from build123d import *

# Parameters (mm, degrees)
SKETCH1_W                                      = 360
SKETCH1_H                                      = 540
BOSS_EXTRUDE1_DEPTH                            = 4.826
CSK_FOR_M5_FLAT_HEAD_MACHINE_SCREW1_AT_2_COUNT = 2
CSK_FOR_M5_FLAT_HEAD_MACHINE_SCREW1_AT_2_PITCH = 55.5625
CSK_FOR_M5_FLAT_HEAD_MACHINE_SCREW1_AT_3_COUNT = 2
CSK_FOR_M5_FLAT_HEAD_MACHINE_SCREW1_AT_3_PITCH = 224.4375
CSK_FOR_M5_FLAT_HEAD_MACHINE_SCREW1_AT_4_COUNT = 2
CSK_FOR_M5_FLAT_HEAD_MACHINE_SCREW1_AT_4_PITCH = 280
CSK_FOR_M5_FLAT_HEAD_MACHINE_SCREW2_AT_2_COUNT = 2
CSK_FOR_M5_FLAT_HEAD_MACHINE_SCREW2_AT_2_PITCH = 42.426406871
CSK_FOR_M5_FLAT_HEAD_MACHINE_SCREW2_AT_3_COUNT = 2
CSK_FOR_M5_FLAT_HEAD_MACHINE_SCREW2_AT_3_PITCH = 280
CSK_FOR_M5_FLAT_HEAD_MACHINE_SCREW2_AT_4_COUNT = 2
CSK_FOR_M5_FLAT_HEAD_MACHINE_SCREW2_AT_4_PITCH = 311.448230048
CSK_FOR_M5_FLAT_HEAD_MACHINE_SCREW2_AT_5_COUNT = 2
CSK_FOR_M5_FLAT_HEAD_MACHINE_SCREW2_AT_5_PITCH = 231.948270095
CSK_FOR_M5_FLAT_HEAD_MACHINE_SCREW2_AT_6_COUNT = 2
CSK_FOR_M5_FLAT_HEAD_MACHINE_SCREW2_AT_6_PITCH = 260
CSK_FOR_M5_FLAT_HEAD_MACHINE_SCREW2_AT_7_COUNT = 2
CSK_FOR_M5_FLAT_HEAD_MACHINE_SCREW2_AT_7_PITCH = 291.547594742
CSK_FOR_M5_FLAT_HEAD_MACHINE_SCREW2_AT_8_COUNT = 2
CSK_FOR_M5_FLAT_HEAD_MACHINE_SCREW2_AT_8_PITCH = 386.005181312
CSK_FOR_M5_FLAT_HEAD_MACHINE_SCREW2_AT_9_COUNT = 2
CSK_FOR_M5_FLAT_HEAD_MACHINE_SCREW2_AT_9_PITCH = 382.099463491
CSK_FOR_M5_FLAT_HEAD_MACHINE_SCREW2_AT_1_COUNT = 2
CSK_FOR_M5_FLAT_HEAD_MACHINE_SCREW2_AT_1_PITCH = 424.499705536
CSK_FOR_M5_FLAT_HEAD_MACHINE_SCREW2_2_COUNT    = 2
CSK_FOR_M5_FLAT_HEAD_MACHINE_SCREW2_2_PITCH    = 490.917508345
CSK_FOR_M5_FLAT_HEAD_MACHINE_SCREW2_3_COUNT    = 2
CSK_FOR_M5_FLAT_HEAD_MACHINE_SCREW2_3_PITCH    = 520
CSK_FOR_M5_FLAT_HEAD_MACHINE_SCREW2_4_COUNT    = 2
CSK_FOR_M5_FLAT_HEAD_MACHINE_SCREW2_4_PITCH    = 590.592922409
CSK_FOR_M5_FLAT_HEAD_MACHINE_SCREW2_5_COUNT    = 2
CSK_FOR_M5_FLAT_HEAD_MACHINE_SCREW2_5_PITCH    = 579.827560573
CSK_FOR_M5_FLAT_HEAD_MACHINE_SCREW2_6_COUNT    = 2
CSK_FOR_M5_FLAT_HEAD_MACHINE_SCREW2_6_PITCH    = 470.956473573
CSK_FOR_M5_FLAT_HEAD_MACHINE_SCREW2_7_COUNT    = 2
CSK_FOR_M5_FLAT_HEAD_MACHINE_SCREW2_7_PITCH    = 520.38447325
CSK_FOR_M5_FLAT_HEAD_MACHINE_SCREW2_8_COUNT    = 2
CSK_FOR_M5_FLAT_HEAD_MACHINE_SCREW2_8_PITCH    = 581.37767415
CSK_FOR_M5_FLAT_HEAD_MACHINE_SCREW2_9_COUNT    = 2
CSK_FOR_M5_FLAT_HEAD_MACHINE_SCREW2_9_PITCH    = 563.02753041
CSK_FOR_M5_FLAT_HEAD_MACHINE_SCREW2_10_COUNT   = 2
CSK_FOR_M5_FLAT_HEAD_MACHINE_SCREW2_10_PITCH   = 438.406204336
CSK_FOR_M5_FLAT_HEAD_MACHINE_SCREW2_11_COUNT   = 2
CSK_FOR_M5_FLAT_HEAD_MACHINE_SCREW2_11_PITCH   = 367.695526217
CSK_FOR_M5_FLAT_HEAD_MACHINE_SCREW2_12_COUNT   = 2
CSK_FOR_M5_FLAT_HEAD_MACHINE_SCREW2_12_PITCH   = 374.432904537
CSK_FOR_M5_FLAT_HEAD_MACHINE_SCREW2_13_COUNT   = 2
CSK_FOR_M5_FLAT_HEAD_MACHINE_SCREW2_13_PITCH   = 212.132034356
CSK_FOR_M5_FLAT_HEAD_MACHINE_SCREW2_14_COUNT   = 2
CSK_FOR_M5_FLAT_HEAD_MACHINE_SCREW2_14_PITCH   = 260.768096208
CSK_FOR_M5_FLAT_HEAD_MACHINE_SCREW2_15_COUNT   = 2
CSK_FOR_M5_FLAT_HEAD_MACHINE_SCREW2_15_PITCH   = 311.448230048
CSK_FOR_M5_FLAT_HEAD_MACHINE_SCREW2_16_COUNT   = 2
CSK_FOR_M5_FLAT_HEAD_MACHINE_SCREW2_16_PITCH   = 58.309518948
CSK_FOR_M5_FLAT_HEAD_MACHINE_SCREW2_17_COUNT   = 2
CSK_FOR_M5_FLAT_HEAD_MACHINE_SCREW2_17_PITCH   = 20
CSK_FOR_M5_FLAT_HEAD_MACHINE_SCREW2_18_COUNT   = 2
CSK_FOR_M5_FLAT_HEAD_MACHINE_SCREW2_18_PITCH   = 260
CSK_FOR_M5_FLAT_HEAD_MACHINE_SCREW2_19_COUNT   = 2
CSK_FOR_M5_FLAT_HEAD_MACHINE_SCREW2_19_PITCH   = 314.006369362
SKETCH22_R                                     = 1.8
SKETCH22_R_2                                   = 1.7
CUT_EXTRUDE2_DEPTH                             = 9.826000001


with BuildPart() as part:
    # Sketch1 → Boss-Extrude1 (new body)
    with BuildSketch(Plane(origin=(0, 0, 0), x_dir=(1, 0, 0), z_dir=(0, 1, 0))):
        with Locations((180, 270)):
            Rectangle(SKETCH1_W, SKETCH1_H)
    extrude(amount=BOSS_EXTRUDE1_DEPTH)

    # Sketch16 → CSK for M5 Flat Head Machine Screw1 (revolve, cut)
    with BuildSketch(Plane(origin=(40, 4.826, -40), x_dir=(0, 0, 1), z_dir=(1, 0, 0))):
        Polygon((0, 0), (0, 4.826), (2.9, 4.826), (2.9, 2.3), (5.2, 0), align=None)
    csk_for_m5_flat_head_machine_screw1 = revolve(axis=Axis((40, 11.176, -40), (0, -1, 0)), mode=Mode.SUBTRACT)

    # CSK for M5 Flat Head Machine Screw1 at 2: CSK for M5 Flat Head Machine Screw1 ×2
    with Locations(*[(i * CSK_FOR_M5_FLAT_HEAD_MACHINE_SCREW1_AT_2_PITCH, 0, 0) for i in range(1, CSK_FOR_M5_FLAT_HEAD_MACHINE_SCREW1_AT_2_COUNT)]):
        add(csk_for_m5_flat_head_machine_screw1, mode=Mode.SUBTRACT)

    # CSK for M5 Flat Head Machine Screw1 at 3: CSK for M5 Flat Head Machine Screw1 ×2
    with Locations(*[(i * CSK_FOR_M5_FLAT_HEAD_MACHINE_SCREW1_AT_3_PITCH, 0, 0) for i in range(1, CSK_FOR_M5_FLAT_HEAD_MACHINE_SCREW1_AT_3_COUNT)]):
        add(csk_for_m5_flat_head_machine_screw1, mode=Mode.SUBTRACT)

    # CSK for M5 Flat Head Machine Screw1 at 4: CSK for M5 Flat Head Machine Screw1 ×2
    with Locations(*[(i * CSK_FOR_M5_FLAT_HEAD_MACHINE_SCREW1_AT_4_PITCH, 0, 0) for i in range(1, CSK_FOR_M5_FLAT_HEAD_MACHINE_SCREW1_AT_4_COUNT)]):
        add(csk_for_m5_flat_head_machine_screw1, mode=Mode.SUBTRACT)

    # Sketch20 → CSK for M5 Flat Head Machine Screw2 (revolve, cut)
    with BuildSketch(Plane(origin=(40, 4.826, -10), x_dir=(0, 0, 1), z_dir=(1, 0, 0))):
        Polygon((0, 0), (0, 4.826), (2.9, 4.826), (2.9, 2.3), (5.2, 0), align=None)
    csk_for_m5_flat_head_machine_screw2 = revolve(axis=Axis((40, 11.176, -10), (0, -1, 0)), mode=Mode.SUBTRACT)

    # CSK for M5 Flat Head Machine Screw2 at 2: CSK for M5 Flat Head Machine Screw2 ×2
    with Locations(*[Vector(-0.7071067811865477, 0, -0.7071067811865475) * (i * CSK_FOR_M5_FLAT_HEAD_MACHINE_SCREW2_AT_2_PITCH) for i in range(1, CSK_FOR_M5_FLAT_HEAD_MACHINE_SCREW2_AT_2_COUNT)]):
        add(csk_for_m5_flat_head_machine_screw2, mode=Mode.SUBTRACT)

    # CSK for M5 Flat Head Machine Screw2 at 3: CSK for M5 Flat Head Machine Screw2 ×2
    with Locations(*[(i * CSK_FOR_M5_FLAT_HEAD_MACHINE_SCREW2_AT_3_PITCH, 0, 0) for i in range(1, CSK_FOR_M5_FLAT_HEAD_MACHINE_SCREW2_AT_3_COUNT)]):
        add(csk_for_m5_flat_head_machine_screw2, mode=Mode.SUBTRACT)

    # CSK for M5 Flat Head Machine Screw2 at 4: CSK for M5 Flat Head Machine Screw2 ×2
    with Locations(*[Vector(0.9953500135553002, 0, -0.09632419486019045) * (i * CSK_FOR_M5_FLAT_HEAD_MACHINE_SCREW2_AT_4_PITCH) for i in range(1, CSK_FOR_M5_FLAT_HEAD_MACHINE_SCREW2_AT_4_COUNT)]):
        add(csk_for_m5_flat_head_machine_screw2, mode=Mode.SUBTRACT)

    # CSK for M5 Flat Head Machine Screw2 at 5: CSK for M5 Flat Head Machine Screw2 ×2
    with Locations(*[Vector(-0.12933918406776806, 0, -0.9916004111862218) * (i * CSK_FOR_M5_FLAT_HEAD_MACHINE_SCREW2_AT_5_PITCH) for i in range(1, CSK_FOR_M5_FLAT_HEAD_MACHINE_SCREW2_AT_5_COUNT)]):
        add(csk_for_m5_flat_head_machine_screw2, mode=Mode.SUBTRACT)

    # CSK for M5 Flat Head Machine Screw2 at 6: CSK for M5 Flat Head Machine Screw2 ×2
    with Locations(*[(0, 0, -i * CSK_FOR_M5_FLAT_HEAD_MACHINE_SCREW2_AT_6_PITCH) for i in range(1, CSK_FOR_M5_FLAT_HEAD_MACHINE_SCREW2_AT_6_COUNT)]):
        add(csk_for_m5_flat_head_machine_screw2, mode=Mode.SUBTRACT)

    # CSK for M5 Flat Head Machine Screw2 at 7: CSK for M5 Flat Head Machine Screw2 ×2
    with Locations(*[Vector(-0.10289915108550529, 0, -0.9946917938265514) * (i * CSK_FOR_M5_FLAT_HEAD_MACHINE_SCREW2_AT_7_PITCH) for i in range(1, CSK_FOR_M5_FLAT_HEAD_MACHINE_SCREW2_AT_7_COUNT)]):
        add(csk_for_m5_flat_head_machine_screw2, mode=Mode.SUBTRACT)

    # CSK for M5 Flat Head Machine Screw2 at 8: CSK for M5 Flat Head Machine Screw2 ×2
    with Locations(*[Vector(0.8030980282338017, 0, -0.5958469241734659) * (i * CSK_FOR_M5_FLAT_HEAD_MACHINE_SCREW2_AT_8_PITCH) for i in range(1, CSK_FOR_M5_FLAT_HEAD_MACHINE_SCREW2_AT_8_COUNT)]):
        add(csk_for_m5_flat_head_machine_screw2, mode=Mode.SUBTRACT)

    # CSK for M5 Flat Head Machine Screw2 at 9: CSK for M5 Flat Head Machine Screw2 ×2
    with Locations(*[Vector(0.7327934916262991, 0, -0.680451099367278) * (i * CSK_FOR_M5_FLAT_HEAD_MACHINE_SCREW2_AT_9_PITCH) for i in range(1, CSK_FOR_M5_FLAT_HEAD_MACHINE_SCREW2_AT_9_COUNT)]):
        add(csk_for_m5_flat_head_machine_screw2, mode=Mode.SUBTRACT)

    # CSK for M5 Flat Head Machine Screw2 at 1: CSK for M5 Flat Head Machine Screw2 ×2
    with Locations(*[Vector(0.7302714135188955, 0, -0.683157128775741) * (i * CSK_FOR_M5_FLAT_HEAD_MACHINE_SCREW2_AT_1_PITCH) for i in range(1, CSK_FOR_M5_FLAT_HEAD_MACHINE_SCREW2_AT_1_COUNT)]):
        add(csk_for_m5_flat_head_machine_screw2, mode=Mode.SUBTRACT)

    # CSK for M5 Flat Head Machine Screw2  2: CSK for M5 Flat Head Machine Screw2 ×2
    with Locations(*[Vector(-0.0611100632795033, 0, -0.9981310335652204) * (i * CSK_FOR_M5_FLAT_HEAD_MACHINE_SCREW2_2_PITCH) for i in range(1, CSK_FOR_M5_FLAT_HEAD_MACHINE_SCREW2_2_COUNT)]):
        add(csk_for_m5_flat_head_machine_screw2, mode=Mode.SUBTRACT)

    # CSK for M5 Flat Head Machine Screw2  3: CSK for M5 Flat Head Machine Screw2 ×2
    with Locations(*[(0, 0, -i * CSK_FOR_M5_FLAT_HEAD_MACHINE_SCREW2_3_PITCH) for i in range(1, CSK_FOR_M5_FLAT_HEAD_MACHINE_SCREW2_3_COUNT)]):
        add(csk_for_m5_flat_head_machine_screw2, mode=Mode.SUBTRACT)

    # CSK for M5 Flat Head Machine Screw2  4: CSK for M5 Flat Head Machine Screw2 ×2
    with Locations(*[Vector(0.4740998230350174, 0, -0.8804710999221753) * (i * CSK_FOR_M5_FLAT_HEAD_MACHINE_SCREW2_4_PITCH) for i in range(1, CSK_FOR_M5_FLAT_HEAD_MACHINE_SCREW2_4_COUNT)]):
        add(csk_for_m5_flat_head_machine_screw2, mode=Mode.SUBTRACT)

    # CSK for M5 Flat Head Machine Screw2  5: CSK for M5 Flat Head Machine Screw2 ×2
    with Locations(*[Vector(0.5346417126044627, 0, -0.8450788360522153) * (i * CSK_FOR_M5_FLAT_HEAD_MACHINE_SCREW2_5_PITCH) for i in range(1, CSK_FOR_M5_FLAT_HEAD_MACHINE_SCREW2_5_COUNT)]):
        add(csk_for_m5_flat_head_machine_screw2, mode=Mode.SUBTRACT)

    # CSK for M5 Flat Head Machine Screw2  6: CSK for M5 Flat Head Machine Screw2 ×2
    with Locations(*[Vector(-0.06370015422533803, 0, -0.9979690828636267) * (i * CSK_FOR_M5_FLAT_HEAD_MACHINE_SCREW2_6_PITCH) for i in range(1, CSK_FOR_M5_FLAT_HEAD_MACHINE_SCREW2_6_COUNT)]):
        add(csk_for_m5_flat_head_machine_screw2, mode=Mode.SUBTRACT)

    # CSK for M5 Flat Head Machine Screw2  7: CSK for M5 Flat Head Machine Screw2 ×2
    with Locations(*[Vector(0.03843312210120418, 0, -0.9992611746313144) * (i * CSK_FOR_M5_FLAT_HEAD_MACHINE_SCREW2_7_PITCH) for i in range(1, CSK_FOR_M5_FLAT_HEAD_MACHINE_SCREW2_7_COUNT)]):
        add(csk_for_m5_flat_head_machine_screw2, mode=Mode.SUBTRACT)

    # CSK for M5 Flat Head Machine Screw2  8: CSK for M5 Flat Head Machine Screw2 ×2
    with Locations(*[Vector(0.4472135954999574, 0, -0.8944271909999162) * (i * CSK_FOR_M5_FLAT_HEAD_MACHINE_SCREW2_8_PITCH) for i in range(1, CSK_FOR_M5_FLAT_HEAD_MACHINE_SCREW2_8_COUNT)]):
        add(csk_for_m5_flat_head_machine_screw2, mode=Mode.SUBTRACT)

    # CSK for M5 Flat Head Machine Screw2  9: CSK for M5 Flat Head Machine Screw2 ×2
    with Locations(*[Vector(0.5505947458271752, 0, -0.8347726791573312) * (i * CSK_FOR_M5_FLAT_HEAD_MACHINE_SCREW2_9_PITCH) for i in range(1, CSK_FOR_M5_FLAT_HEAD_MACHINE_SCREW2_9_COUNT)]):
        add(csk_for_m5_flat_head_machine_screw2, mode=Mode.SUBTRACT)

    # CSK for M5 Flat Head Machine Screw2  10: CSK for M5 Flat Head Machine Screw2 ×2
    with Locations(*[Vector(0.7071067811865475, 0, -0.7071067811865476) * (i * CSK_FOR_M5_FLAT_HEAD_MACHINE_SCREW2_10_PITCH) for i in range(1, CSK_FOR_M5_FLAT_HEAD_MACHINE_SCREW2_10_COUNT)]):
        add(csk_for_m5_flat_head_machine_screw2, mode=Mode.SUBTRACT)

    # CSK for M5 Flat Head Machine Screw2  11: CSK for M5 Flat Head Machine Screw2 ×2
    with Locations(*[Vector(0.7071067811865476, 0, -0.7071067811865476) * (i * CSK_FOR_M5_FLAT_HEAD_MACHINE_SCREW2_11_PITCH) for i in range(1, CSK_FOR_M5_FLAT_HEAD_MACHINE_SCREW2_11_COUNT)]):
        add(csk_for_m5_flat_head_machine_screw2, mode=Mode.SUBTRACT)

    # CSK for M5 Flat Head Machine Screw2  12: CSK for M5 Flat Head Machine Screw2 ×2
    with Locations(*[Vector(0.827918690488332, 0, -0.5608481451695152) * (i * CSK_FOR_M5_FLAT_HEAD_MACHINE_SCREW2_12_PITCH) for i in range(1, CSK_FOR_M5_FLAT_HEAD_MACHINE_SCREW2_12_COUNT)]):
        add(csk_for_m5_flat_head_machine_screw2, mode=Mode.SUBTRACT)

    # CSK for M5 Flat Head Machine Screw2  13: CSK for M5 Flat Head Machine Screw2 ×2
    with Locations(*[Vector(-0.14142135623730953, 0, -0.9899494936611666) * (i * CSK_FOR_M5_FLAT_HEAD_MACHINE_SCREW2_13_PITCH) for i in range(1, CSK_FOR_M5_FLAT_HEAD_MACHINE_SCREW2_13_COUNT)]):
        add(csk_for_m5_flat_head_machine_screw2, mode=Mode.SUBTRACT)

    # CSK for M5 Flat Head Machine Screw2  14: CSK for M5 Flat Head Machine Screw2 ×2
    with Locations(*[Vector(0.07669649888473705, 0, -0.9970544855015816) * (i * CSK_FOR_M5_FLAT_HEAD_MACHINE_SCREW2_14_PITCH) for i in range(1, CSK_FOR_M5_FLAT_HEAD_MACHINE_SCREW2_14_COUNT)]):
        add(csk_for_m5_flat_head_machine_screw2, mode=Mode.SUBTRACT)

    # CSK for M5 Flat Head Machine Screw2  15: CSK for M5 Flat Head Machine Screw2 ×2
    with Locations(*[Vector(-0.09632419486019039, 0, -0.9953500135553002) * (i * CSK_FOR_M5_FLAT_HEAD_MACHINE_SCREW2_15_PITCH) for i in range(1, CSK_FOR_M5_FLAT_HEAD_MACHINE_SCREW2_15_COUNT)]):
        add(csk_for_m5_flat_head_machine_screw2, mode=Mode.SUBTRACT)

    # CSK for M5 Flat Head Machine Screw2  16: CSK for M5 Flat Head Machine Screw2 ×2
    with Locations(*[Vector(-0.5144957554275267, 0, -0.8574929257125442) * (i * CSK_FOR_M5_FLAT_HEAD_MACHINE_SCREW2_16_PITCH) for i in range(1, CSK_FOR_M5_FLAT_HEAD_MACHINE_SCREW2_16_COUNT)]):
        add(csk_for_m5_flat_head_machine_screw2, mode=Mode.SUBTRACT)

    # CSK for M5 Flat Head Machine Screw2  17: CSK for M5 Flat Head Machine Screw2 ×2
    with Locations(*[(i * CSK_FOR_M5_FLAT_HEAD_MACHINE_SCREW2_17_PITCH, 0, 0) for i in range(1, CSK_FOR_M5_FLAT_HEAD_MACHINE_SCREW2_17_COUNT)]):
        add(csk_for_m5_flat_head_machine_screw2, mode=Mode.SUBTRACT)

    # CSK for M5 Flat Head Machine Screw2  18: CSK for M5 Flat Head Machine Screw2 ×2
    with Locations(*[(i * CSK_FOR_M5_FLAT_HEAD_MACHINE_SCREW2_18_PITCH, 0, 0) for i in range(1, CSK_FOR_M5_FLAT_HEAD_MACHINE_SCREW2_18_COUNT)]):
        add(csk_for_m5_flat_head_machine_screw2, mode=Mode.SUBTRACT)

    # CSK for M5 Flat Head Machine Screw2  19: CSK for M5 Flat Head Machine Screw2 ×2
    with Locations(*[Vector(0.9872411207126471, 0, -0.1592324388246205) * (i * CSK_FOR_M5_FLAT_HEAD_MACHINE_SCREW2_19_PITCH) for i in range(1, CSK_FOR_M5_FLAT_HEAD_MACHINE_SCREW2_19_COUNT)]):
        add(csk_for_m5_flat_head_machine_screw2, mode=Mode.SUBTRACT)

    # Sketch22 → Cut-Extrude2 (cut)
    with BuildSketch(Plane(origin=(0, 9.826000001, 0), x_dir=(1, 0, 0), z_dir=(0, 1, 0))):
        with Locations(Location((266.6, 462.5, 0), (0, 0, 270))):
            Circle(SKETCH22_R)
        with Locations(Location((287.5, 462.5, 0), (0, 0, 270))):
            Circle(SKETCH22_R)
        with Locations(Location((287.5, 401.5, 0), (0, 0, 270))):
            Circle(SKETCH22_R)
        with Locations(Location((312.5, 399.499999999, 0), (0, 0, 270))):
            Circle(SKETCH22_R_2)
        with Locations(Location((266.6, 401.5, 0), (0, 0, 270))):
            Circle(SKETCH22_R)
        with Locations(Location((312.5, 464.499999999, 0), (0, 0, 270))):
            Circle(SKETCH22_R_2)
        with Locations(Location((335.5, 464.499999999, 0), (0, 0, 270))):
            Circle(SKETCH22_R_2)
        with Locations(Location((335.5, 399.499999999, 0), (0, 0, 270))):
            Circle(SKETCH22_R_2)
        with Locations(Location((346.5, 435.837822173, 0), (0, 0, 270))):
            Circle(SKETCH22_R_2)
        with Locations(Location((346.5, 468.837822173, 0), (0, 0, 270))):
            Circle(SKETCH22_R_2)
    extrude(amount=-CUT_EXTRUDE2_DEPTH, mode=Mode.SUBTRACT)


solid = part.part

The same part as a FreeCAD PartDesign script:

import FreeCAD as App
import Part
import Sketcher
Q = App.Units.Quantity


def add_polygon(sketch, points):
    """Adds a closed chain of lines whose ends are joined by coincident constraints."""
    first, n = sketch.GeometryCount, len(points)
    for a, b in zip(points, points[1:] + points[:1]):
        sketch.addGeometry(Part.LineSegment(App.Vector(*a, 0), App.Vector(*b, 0)), False)
    for i in range(n):
        sketch.addConstraint(Sketcher.Constraint("Coincident", first + i, 2, first + (i + 1) % n, 1))

doc = App.newDocument("Part")
body = doc.addObject("PartDesign::Body", "Body")

sketch1 = body.newObject("Sketcher::SketchObject", "Sketch")
sketch1.AttachmentSupport = (doc.getObject("XZ_Plane"), [""])
sketch1.MapMode = "FlatFace"
add_polygon(sketch1, [(0, -540), (0, 0), (360, 0), (360, -540)])
sketch1.addConstraint(Sketcher.Constraint("Vertical", 0))
sketch1.addConstraint(Sketcher.Constraint("Horizontal", 1))
sketch1.addConstraint(Sketcher.Constraint("Vertical", 2))
sketch1.addConstraint(Sketcher.Constraint("Horizontal", 3))
sketch1.addConstraint(Sketcher.Constraint("Coincident", 0, 2, -1, 1))
sketch1.addConstraint(Sketcher.Constraint("DistanceX", 1, 1, 1, 2, Q("360 mm")))
sketch1.addConstraint(Sketcher.Constraint("DistanceY", 0, 1, 0, 2, Q("540 mm")))
pad1 = body.newObject("PartDesign::Pad", "Pad")
pad1.Profile = sketch1
pad1.Length = 4.826
pad1.Reversed = True

sketch2 = body.newObject("Sketcher::SketchObject", "Sketch001")
sketch2.AttachmentSupport = (doc.getObject("YZ_Plane"), [""])
sketch2.MapMode = "FlatFace"
sketch2.AttachmentOffset = App.Placement(App.Vector(0, 0, 40), App.Rotation())
add_polygon(sketch2, [(0, -40), (4.8, -40), (4.8, -34.8), (2.5, -37.1), (0, -37.1)])
sketch2.addGeometry(Part.LineSegment(App.Vector(4.8, -40, 0), App.Vector(0, -40, 0)), True)
sketch2.addConstraint(Sketcher.Constraint("Horizontal", 0))
sketch2.addConstraint(Sketcher.Constraint("Vertical", 1))
sketch2.addConstraint(Sketcher.Constraint("Horizontal", 3))
sketch2.addConstraint(Sketcher.Constraint("Vertical", 4))
sketch2.addConstraint(Sketcher.Constraint("Horizontal", 5))
sketch2.addConstraint(Sketcher.Constraint("Coincident", 5, 1, 0, 2))
sketch2.addConstraint(Sketcher.Constraint("PointOnObject", 3, 2, -2))
sketch2.addConstraint(Sketcher.Constraint("PointOnObject", 5, 2, -2))
sketch2.addConstraint(Sketcher.Constraint("Angle", 2, Q("-135 deg")))
sketch2.addConstraint(Sketcher.Constraint("DistanceY", 1, 1, 1, 2, Q("5.2 mm")))
sketch2.addConstraint(Sketcher.Constraint("DistanceY", 4, 2, 4, 1, Q("2.9 mm")))
sketch2.addConstraint(Sketcher.Constraint("DistanceY", 0, 2, -1, 1, Q("40 mm")))
sketch2.addConstraint(Sketcher.Constraint("DistanceX", 0, 1, 0, 2, Q("4.826 mm")))
groove = body.newObject("PartDesign::Groove", "Groove")
groove.Profile = sketch2
groove.ReferenceAxis = (sketch2, ["Axis0"])
groove.Angle = 360
doc.recompute()

linearpattern = body.newObject("PartDesign::LinearPattern", "LinearPattern")
linearpattern.Originals = [groove]
linearpattern.Direction = (doc.getObject("X_Axis"), [""])
linearpattern.Mode = "offset"
linearpattern.Offset = 55.5625
linearpattern.Occurrences = 2
body.Tip = linearpattern
doc.recompute()

linearpattern2 = body.newObject("PartDesign::LinearPattern", "LinearPattern001")
linearpattern2.Originals = [groove]
linearpattern2.Direction = (doc.getObject("X_Axis"), [""])
linearpattern2.Mode = "offset"
linearpattern2.Offset = 224.4375
linearpattern2.Occurrences = 2
body.Tip = linearpattern2
doc.recompute()

linearpattern3 = body.newObject("PartDesign::LinearPattern", "LinearPattern002")
linearpattern3.Originals = [groove]
linearpattern3.Direction = (doc.getObject("X_Axis"), [""])
linearpattern3.Mode = "offset"
linearpattern3.Offset = 280
linearpattern3.Occurrences = 2
body.Tip = linearpattern3

sketch3 = body.newObject("Sketcher::SketchObject", "Sketch002")
sketch3.AttachmentSupport = (doc.getObject("YZ_Plane"), [""])
sketch3.MapMode = "FlatFace"
sketch3.AttachmentOffset = App.Placement(App.Vector(0, 0, 40), App.Rotation())
add_polygon(sketch3, [(0, -10), (4.8, -10), (4.8, -4.8), (2.5, -7.1), (0, -7.1)])
sketch3.addGeometry(Part.LineSegment(App.Vector(4.8, -10, 0), App.Vector(0, -10, 0)), True)
sketch3.addConstraint(Sketcher.Constraint("Horizontal", 0))
sketch3.addConstraint(Sketcher.Constraint("Vertical", 1))
sketch3.addConstraint(Sketcher.Constraint("Horizontal", 3))
sketch3.addConstraint(Sketcher.Constraint("Vertical", 4))
sketch3.addConstraint(Sketcher.Constraint("Horizontal", 5))
sketch3.addConstraint(Sketcher.Constraint("Coincident", 5, 1, 0, 2))
sketch3.addConstraint(Sketcher.Constraint("PointOnObject", 3, 2, -2))
sketch3.addConstraint(Sketcher.Constraint("PointOnObject", 5, 2, -2))
sketch3.addConstraint(Sketcher.Constraint("Angle", 2, Q("-135 deg")))
sketch3.addConstraint(Sketcher.Constraint("DistanceY", 1, 1, 1, 2, Q("5.2 mm")))
sketch3.addConstraint(Sketcher.Constraint("DistanceY", 4, 2, 4, 1, Q("2.9 mm")))
sketch3.addConstraint(Sketcher.Constraint("DistanceY", 0, 2, -1, 1, Q("10 mm")))
sketch3.addConstraint(Sketcher.Constraint("DistanceX", 0, 1, 0, 2, Q("4.826 mm")))
groove2 = body.newObject("PartDesign::Groove", "Groove001")
groove2.Profile = sketch3
groove2.ReferenceAxis = (sketch3, ["Axis0"])
groove2.Angle = 360
doc.recompute()

datumline = body.newObject("PartDesign::Line", "DatumLine")
datumline.Placement = App.Placement(App.Vector(0, 0, 0), App.Rotation(App.Vector(0, 0, 1), App.Vector(-0.707106781, 0, -0.707106781)))
linearpattern4 = body.newObject("PartDesign::LinearPattern", "LinearPattern003")
linearpattern4.Originals = [groove2]
linearpattern4.Direction = (datumline, [""])
linearpattern4.Mode = "offset"
linearpattern4.Offset = 42.426407
linearpattern4.Occurrences = 2
body.Tip = linearpattern4
doc.recompute()

linearpattern5 = body.newObject("PartDesign::LinearPattern", "LinearPattern004")
linearpattern5.Originals = [groove2]
linearpattern5.Direction = (doc.getObject("X_Axis"), [""])
linearpattern5.Mode = "offset"
linearpattern5.Offset = 280
linearpattern5.Occurrences = 2
body.Tip = linearpattern5
doc.recompute()

datumline2 = body.newObject("PartDesign::Line", "DatumLine001")
datumline2.Placement = App.Placement(App.Vector(0, 0, 0), App.Rotation(App.Vector(0, 0, 1), App.Vector(0.995350014, 0, -0.096324195)))
linearpattern6 = body.newObject("PartDesign::LinearPattern", "LinearPattern005")
linearpattern6.Originals = [groove2]
linearpattern6.Direction = (datumline2, [""])
linearpattern6.Mode = "offset"
linearpattern6.Offset = 311.44823
linearpattern6.Occurrences = 2
body.Tip = linearpattern6
doc.recompute()

datumline3 = body.newObject("PartDesign::Line", "DatumLine002")
datumline3.Placement = App.Placement(App.Vector(0, 0, 0), App.Rotation(App.Vector(0, 0, 1), App.Vector(-0.129339184, 0, -0.991600411)))
linearpattern7 = body.newObject("PartDesign::LinearPattern", "LinearPattern006")
linearpattern7.Originals = [groove2]
linearpattern7.Direction = (datumline3, [""])
linearpattern7.Mode = "offset"
linearpattern7.Offset = 231.94827
linearpattern7.Occurrences = 2
body.Tip = linearpattern7
doc.recompute()

linearpattern8 = body.newObject("PartDesign::LinearPattern", "LinearPattern007")
linearpattern8.Originals = [groove2]
linearpattern8.Direction = (doc.getObject("Z_Axis"), [""])
linearpattern8.Mode = "offset"
linearpattern8.Offset = 260
linearpattern8.Occurrences = 2
linearpattern8.Reversed = True
body.Tip = linearpattern8
doc.recompute()

datumline4 = body.newObject("PartDesign::Line", "DatumLine003")
datumline4.Placement = App.Placement(App.Vector(0, 0, 0), App.Rotation(App.Vector(0, 0, 1), App.Vector(-0.102899151, 0, -0.994691794)))
linearpattern9 = body.newObject("PartDesign::LinearPattern", "LinearPattern008")
linearpattern9.Originals = [groove2]
linearpattern9.Direction = (datumline4, [""])
linearpattern9.Mode = "offset"
linearpattern9.Offset = 291.547595
linearpattern9.Occurrences = 2
body.Tip = linearpattern9
doc.recompute()

datumline5 = body.newObject("PartDesign::Line", "DatumLine004")
datumline5.Placement = App.Placement(App.Vector(0, 0, 0), App.Rotation(App.Vector(0, 0, 1), App.Vector(0.803098028, 0, -0.595846924)))
linearpattern10 = body.newObject("PartDesign::LinearPattern", "LinearPattern009")
linearpattern10.Originals = [groove2]
linearpattern10.Direction = (datumline5, [""])
linearpattern10.Mode = "offset"
linearpattern10.Offset = 386.005181
linearpattern10.Occurrences = 2
body.Tip = linearpattern10
doc.recompute()

datumline6 = body.newObject("PartDesign::Line", "DatumLine005")
datumline6.Placement = App.Placement(App.Vector(0, 0, 0), App.Rotation(App.Vector(0, 0, 1), App.Vector(0.732793492, 0, -0.680451099)))
linearpattern11 = body.newObject("PartDesign::LinearPattern", "LinearPattern010")
linearpattern11.Originals = [groove2]
linearpattern11.Direction = (datumline6, [""])
linearpattern11.Mode = "offset"
linearpattern11.Offset = 382.099463
linearpattern11.Occurrences = 2
body.Tip = linearpattern11
doc.recompute()

datumline7 = body.newObject("PartDesign::Line", "DatumLine006")
datumline7.Placement = App.Placement(App.Vector(0, 0, 0), App.Rotation(App.Vector(0, 0, 1), App.Vector(0.730271414, 0, -0.683157129)))
linearpattern12 = body.newObject("PartDesign::LinearPattern", "LinearPattern011")
linearpattern12.Originals = [groove2]
linearpattern12.Direction = (datumline7, [""])
linearpattern12.Mode = "offset"
linearpattern12.Offset = 424.499706
linearpattern12.Occurrences = 2
body.Tip = linearpattern12
doc.recompute()

datumline8 = body.newObject("PartDesign::Line", "DatumLine007")
datumline8.Placement = App.Placement(App.Vector(0, 0, 0), App.Rotation(App.Vector(0, 0, 1), App.Vector(-0.061110063, 0, -0.998131034)))
linearpattern13 = body.newObject("PartDesign::LinearPattern", "LinearPattern012")
linearpattern13.Originals = [groove2]
linearpattern13.Direction = (datumline8, [""])
linearpattern13.Mode = "offset"
linearpattern13.Offset = 490.917508
linearpattern13.Occurrences = 2
body.Tip = linearpattern13
doc.recompute()

linearpattern14 = body.newObject("PartDesign::LinearPattern", "LinearPattern013")
linearpattern14.Originals = [groove2]
linearpattern14.Direction = (doc.getObject("Z_Axis"), [""])
linearpattern14.Mode = "offset"
linearpattern14.Offset = 520
linearpattern14.Occurrences = 2
linearpattern14.Reversed = True
body.Tip = linearpattern14
doc.recompute()

datumline9 = body.newObject("PartDesign::Line", "DatumLine008")
datumline9.Placement = App.Placement(App.Vector(0, 0, 0), App.Rotation(App.Vector(0, 0, 1), App.Vector(0.474099823, 0, -0.8804711)))
linearpattern15 = body.newObject("PartDesign::LinearPattern", "LinearPattern014")
linearpattern15.Originals = [groove2]
linearpattern15.Direction = (datumline9, [""])
linearpattern15.Mode = "offset"
linearpattern15.Offset = 590.592922
linearpattern15.Occurrences = 2
body.Tip = linearpattern15
doc.recompute()

datumline10 = body.newObject("PartDesign::Line", "DatumLine009")
datumline10.Placement = App.Placement(App.Vector(0, 0, 0), App.Rotation(App.Vector(0, 0, 1), App.Vector(0.534641713, 0, -0.845078836)))
linearpattern16 = body.newObject("PartDesign::LinearPattern", "LinearPattern015")
linearpattern16.Originals = [groove2]
linearpattern16.Direction = (datumline10, [""])
linearpattern16.Mode = "offset"
linearpattern16.Offset = 579.827561
linearpattern16.Occurrences = 2
body.Tip = linearpattern16
doc.recompute()

datumline11 = body.newObject("PartDesign::Line", "DatumLine010")
datumline11.Placement = App.Placement(App.Vector(0, 0, 0), App.Rotation(App.Vector(0, 0, 1), App.Vector(-0.063700154, 0, -0.997969083)))
linearpattern17 = body.newObject("PartDesign::LinearPattern", "LinearPattern016")
linearpattern17.Originals = [groove2]
linearpattern17.Direction = (datumline11, [""])
linearpattern17.Mode = "offset"
linearpattern17.Offset = 470.956474
linearpattern17.Occurrences = 2
body.Tip = linearpattern17
doc.recompute()

datumline12 = body.newObject("PartDesign::Line", "DatumLine011")
datumline12.Placement = App.Placement(App.Vector(0, 0, 0), App.Rotation(App.Vector(0, 0, 1), App.Vector(0.038433122, 0, -0.999261175)))
linearpattern18 = body.newObject("PartDesign::LinearPattern", "LinearPattern017")
linearpattern18.Originals = [groove2]
linearpattern18.Direction = (datumline12, [""])
linearpattern18.Mode = "offset"
linearpattern18.Offset = 520.384473
linearpattern18.Occurrences = 2
body.Tip = linearpattern18
doc.recompute()

datumline13 = body.newObject("PartDesign::Line", "DatumLine012")
datumline13.Placement = App.Placement(App.Vector(0, 0, 0), App.Rotation(App.Vector(0, 0, 1), App.Vector(0.447213595, 0, -0.894427191)))
linearpattern19 = body.newObject("PartDesign::LinearPattern", "LinearPattern018")
linearpattern19.Originals = [groove2]
linearpattern19.Direction = (datumline13, [""])
linearpattern19.Mode = "offset"
linearpattern19.Offset = 581.377674
linearpattern19.Occurrences = 2
body.Tip = linearpattern19
doc.recompute()

datumline14 = body.newObject("PartDesign::Line", "DatumLine013")
datumline14.Placement = App.Placement(App.Vector(0, 0, 0), App.Rotation(App.Vector(0, 0, 1), App.Vector(0.550594746, 0, -0.834772679)))
linearpattern20 = body.newObject("PartDesign::LinearPattern", "LinearPattern019")
linearpattern20.Originals = [groove2]
linearpattern20.Direction = (datumline14, [""])
linearpattern20.Mode = "offset"
linearpattern20.Offset = 563.02753
linearpattern20.Occurrences = 2
body.Tip = linearpattern20
doc.recompute()

datumline15 = body.newObject("PartDesign::Line", "DatumLine014")
datumline15.Placement = App.Placement(App.Vector(0, 0, 0), App.Rotation(App.Vector(0, 0, 1), App.Vector(0.707106781, 0, -0.707106781)))
linearpattern21 = body.newObject("PartDesign::LinearPattern", "LinearPattern020")
linearpattern21.Originals = [groove2]
linearpattern21.Direction = (datumline15, [""])
linearpattern21.Mode = "offset"
linearpattern21.Offset = 438.406204
linearpattern21.Occurrences = 2
body.Tip = linearpattern21
doc.recompute()

datumline16 = body.newObject("PartDesign::Line", "DatumLine015")
datumline16.Placement = App.Placement(App.Vector(0, 0, 0), App.Rotation(App.Vector(0, 0, 1), App.Vector(0.707106781, 0, -0.707106781)))
linearpattern22 = body.newObject("PartDesign::LinearPattern", "LinearPattern021")
linearpattern22.Originals = [groove2]
linearpattern22.Direction = (datumline16, [""])
linearpattern22.Mode = "offset"
linearpattern22.Offset = 367.695526
linearpattern22.Occurrences = 2
body.Tip = linearpattern22
doc.recompute()

datumline17 = body.newObject("PartDesign::Line", "DatumLine016")
datumline17.Placement = App.Placement(App.Vector(0, 0, 0), App.Rotation(App.Vector(0, 0, 1), App.Vector(0.82791869, 0, -0.560848145)))
linearpattern23 = body.newObject("PartDesign::LinearPattern", "LinearPattern022")
linearpattern23.Originals = [groove2]
linearpattern23.Direction = (datumline17, [""])
linearpattern23.Mode = "offset"
linearpattern23.Offset = 374.432905
linearpattern23.Occurrences = 2
body.Tip = linearpattern23
doc.recompute()

datumline18 = body.newObject("PartDesign::Line", "DatumLine017")
datumline18.Placement = App.Placement(App.Vector(0, 0, 0), App.Rotation(App.Vector(0, 0, 1), App.Vector(-0.141421356, 0, -0.989949494)))
linearpattern24 = body.newObject("PartDesign::LinearPattern", "LinearPattern023")
linearpattern24.Originals = [groove2]
linearpattern24.Direction = (datumline18, [""])
linearpattern24.Mode = "offset"
linearpattern24.Offset = 212.132034
linearpattern24.Occurrences = 2
body.Tip = linearpattern24
doc.recompute()

datumline19 = body.newObject("PartDesign::Line", "DatumLine018")
datumline19.Placement = App.Placement(App.Vector(0, 0, 0), App.Rotation(App.Vector(0, 0, 1), App.Vector(0.076696499, 0, -0.997054486)))
linearpattern25 = body.newObject("PartDesign::LinearPattern", "LinearPattern024")
linearpattern25.Originals = [groove2]
linearpattern25.Direction = (datumline19, [""])
linearpattern25.Mode = "offset"
linearpattern25.Offset = 260.768096
linearpattern25.Occurrences = 2
body.Tip = linearpattern25
doc.recompute()

datumline20 = body.newObject("PartDesign::Line", "DatumLine019")
datumline20.Placement = App.Placement(App.Vector(0, 0, 0), App.Rotation(App.Vector(0, 0, 1), App.Vector(-0.096324195, 0, -0.995350014)))
linearpattern26 = body.newObject("PartDesign::LinearPattern", "LinearPattern025")
linearpattern26.Originals = [groove2]
linearpattern26.Direction = (datumline20, [""])
linearpattern26.Mode = "offset"
linearpattern26.Offset = 311.44823
linearpattern26.Occurrences = 2
body.Tip = linearpattern26
doc.recompute()

datumline21 = body.newObject("PartDesign::Line", "DatumLine020")
datumline21.Placement = App.Placement(App.Vector(0, 0, 0), App.Rotation(App.Vector(0, 0, 1), App.Vector(-0.514495755, 0, -0.857492926)))
linearpattern27 = body.newObject("PartDesign::LinearPattern", "LinearPattern026")
linearpattern27.Originals = [groove2]
linearpattern27.Direction = (datumline21, [""])
linearpattern27.Mode = "offset"
linearpattern27.Offset = 58.309519
linearpattern27.Occurrences = 2
body.Tip = linearpattern27
doc.recompute()

linearpattern28 = body.newObject("PartDesign::LinearPattern", "LinearPattern027")
linearpattern28.Originals = [groove2]
linearpattern28.Direction = (doc.getObject("X_Axis"), [""])
linearpattern28.Mode = "offset"
linearpattern28.Offset = 20
linearpattern28.Occurrences = 2
body.Tip = linearpattern28
doc.recompute()

linearpattern29 = body.newObject("PartDesign::LinearPattern", "LinearPattern028")
linearpattern29.Originals = [groove2]
linearpattern29.Direction = (doc.getObject("X_Axis"), [""])
linearpattern29.Mode = "offset"
linearpattern29.Offset = 260
linearpattern29.Occurrences = 2
body.Tip = linearpattern29
doc.recompute()

datumline22 = body.newObject("PartDesign::Line", "DatumLine021")
datumline22.Placement = App.Placement(App.Vector(0, 0, 0), App.Rotation(App.Vector(0, 0, 1), App.Vector(0.987241121, 0, -0.159232439)))
linearpattern30 = body.newObject("PartDesign::LinearPattern", "LinearPattern029")
linearpattern30.Originals = [groove2]
linearpattern30.Direction = (datumline22, [""])
linearpattern30.Mode = "offset"
linearpattern30.Offset = 314.006369
linearpattern30.Occurrences = 2
body.Tip = linearpattern30

sketch4 = body.newObject("Sketcher::SketchObject", "Sketch003")
sketch4.AttachmentSupport = (doc.getObject("XZ_Plane"), [""])
sketch4.MapMode = "FlatFace"
sketch4.AttachmentOffset = App.Placement(App.Vector(0, 0, -9.826), App.Rotation())
sketch4.addGeometry(Part.Circle(App.Vector(266.6, -462.5, 0), App.Vector(0, 0, 1), 1.8), False)
sketch4.addGeometry(Part.Circle(App.Vector(287.5, -462.5, 0), App.Vector(0, 0, 1), 1.8), False)
sketch4.addGeometry(Part.Circle(App.Vector(287.5, -401.5, 0), App.Vector(0, 0, 1), 1.8), False)
sketch4.addGeometry(Part.Circle(App.Vector(312.5, -399.5, 0), App.Vector(0, 0, 1), 1.7), False)
sketch4.addGeometry(Part.Circle(App.Vector(266.6, -401.5, 0), App.Vector(0, 0, 1), 1.8), False)
sketch4.addGeometry(Part.Circle(App.Vector(312.5, -464.5, 0), App.Vector(0, 0, 1), 1.7), False)
sketch4.addGeometry(Part.Circle(App.Vector(335.5, -464.5, 0), App.Vector(0, 0, 1), 1.7), False)
sketch4.addGeometry(Part.Circle(App.Vector(335.5, -399.5, 0), App.Vector(0, 0, 1), 1.7), False)
sketch4.addGeometry(Part.Circle(App.Vector(346.5, -435.8, 0), App.Vector(0, 0, 1), 1.7), False)
sketch4.addGeometry(Part.Circle(App.Vector(346.5, -468.8, 0), App.Vector(0, 0, 1), 1.7), False)
sketch4.addConstraint(Sketcher.Constraint("Equal", 0, 1))
sketch4.addConstraint(Sketcher.Constraint("Equal", 1, 2))
sketch4.addConstraint(Sketcher.Constraint("Equal", 2, 4))
sketch4.addConstraint(Sketcher.Constraint("Equal", 3, 5))
sketch4.addConstraint(Sketcher.Constraint("Equal", 5, 6))
sketch4.addConstraint(Sketcher.Constraint("Equal", 6, 7))
sketch4.addConstraint(Sketcher.Constraint("Equal", 7, 8))
sketch4.addConstraint(Sketcher.Constraint("Equal", 8, 9))
sketch4.addConstraint(Sketcher.Constraint("Horizontal", 0, 3, 1, 3))
sketch4.addConstraint(Sketcher.Constraint("Horizontal", 2, 3, 4, 3))
sketch4.addConstraint(Sketcher.Constraint("Horizontal", 5, 3, 6, 3))
sketch4.addConstraint(Sketcher.Constraint("Horizontal", 3, 3, 7, 3))
sketch4.addConstraint(Sketcher.Constraint("Vertical", 1, 3, 2, 3))
sketch4.addConstraint(Sketcher.Constraint("Vertical", 0, 3, 4, 3))
sketch4.addConstraint(Sketcher.Constraint("Vertical", 3, 3, 5, 3))
sketch4.addConstraint(Sketcher.Constraint("Vertical", 6, 3, 7, 3))
sketch4.addConstraint(Sketcher.Constraint("Vertical", 8, 3, 9, 3))
sketch4.addConstraint(Sketcher.Constraint("Diameter", 0, Q("3.6 mm")))
sketch4.addConstraint(Sketcher.Constraint("Diameter", 3, Q("3.4 mm")))
sketch4.addConstraint(Sketcher.Constraint("DistanceY", 1, 3, 2, 3, Q("61 mm")))
sketch4.addConstraint(Sketcher.Constraint("DistanceX", 2, 3, 3, 3, Q("25 mm")))
sketch4.addConstraint(Sketcher.Constraint("DistanceY", 2, 3, 3, 3, Q("2 mm")))
sketch4.addConstraint(Sketcher.Constraint("DistanceY", 5, 3, 1, 3, Q("2 mm")))
sketch4.addConstraint(Sketcher.Constraint("DistanceX", 5, 3, 6, 3, Q("23 mm")))
sketch4.addConstraint(Sketcher.Constraint("DistanceX", 6, 3, 8, 3, Q("11 mm")))
sketch4.addConstraint(Sketcher.Constraint("DistanceY", 9, 3, 8, 3, Q("33 mm")))
sketch4.addConstraint(Sketcher.Constraint("DistanceX", -1, 1, 0, 3, Q("266.6 mm")))
sketch4.addConstraint(Sketcher.Constraint("DistanceY", 0, 3, -1, 1, Q("462.5 mm")))
sketch4.addConstraint(Sketcher.Constraint("DistanceX", -1, 1, 1, 3, Q("287.5 mm")))
sketch4.addConstraint(Sketcher.Constraint("DistanceY", 8, 3, -1, 1, Q("435.837822 mm")))
pocket1 = body.newObject("PartDesign::Pocket", "Pocket")
pocket1.Profile = sketch4
pocket1.Length = 9.826
pocket1.Reversed = True

doc.recompute()
